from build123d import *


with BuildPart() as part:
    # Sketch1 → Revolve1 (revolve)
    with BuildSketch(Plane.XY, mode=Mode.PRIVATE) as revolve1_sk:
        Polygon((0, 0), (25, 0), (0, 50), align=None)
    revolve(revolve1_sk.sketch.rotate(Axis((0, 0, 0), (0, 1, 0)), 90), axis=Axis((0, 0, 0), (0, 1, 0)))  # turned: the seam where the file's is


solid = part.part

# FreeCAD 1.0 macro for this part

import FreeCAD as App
import Part
import Sketcher

doc = App.newDocument("Part")
body = doc.addObject("PartDesign::Body", "Body")

# Sketch on XY plane
sketch1 = body.newObject("Sketcher::SketchObject", "Sketch")
sketch1.AttachmentSupport = (doc.getObject("XY_Plane"), [""])
sketch1.MapMode = "FlatFace"
sketch1.addGeometry([
    Part.LineSegment(App.Vector(0, 0, 0), App.Vector(25, 0, 0)),
    Part.LineSegment(App.Vector(25, 0, 0), App.Vector(0, 50, 0)),
    Part.LineSegment(App.Vector(0, 50, 0), App.Vector(0, 0, 0)),
], False)
sketch1.addConstraint([
    Sketcher.Constraint("Coincident", 0, 2, 1, 1),
    Sketcher.Constraint("Coincident", 1, 2, 2, 1),
    Sketcher.Constraint("Coincident", 2, 2, 0, 1),
    Sketcher.Constraint("Horizontal", 0),
    Sketcher.Constraint("Vertical", 2),
    Sketcher.Constraint("Coincident", 2, 2, -1, 1),
    Sketcher.Constraint("DistanceX", 0, 1, 0, 2, 25.0),
    Sketcher.Constraint("DistanceY", 2, 2, 2, 1, 50.0),
])
revolution = body.newObject("PartDesign::Revolution", "Revolution")
revolution.Profile = sketch1
revolution.ReferenceAxis = (sketch1, ["V_Axis"])
revolution.Angle = 360

doc.recompute()
